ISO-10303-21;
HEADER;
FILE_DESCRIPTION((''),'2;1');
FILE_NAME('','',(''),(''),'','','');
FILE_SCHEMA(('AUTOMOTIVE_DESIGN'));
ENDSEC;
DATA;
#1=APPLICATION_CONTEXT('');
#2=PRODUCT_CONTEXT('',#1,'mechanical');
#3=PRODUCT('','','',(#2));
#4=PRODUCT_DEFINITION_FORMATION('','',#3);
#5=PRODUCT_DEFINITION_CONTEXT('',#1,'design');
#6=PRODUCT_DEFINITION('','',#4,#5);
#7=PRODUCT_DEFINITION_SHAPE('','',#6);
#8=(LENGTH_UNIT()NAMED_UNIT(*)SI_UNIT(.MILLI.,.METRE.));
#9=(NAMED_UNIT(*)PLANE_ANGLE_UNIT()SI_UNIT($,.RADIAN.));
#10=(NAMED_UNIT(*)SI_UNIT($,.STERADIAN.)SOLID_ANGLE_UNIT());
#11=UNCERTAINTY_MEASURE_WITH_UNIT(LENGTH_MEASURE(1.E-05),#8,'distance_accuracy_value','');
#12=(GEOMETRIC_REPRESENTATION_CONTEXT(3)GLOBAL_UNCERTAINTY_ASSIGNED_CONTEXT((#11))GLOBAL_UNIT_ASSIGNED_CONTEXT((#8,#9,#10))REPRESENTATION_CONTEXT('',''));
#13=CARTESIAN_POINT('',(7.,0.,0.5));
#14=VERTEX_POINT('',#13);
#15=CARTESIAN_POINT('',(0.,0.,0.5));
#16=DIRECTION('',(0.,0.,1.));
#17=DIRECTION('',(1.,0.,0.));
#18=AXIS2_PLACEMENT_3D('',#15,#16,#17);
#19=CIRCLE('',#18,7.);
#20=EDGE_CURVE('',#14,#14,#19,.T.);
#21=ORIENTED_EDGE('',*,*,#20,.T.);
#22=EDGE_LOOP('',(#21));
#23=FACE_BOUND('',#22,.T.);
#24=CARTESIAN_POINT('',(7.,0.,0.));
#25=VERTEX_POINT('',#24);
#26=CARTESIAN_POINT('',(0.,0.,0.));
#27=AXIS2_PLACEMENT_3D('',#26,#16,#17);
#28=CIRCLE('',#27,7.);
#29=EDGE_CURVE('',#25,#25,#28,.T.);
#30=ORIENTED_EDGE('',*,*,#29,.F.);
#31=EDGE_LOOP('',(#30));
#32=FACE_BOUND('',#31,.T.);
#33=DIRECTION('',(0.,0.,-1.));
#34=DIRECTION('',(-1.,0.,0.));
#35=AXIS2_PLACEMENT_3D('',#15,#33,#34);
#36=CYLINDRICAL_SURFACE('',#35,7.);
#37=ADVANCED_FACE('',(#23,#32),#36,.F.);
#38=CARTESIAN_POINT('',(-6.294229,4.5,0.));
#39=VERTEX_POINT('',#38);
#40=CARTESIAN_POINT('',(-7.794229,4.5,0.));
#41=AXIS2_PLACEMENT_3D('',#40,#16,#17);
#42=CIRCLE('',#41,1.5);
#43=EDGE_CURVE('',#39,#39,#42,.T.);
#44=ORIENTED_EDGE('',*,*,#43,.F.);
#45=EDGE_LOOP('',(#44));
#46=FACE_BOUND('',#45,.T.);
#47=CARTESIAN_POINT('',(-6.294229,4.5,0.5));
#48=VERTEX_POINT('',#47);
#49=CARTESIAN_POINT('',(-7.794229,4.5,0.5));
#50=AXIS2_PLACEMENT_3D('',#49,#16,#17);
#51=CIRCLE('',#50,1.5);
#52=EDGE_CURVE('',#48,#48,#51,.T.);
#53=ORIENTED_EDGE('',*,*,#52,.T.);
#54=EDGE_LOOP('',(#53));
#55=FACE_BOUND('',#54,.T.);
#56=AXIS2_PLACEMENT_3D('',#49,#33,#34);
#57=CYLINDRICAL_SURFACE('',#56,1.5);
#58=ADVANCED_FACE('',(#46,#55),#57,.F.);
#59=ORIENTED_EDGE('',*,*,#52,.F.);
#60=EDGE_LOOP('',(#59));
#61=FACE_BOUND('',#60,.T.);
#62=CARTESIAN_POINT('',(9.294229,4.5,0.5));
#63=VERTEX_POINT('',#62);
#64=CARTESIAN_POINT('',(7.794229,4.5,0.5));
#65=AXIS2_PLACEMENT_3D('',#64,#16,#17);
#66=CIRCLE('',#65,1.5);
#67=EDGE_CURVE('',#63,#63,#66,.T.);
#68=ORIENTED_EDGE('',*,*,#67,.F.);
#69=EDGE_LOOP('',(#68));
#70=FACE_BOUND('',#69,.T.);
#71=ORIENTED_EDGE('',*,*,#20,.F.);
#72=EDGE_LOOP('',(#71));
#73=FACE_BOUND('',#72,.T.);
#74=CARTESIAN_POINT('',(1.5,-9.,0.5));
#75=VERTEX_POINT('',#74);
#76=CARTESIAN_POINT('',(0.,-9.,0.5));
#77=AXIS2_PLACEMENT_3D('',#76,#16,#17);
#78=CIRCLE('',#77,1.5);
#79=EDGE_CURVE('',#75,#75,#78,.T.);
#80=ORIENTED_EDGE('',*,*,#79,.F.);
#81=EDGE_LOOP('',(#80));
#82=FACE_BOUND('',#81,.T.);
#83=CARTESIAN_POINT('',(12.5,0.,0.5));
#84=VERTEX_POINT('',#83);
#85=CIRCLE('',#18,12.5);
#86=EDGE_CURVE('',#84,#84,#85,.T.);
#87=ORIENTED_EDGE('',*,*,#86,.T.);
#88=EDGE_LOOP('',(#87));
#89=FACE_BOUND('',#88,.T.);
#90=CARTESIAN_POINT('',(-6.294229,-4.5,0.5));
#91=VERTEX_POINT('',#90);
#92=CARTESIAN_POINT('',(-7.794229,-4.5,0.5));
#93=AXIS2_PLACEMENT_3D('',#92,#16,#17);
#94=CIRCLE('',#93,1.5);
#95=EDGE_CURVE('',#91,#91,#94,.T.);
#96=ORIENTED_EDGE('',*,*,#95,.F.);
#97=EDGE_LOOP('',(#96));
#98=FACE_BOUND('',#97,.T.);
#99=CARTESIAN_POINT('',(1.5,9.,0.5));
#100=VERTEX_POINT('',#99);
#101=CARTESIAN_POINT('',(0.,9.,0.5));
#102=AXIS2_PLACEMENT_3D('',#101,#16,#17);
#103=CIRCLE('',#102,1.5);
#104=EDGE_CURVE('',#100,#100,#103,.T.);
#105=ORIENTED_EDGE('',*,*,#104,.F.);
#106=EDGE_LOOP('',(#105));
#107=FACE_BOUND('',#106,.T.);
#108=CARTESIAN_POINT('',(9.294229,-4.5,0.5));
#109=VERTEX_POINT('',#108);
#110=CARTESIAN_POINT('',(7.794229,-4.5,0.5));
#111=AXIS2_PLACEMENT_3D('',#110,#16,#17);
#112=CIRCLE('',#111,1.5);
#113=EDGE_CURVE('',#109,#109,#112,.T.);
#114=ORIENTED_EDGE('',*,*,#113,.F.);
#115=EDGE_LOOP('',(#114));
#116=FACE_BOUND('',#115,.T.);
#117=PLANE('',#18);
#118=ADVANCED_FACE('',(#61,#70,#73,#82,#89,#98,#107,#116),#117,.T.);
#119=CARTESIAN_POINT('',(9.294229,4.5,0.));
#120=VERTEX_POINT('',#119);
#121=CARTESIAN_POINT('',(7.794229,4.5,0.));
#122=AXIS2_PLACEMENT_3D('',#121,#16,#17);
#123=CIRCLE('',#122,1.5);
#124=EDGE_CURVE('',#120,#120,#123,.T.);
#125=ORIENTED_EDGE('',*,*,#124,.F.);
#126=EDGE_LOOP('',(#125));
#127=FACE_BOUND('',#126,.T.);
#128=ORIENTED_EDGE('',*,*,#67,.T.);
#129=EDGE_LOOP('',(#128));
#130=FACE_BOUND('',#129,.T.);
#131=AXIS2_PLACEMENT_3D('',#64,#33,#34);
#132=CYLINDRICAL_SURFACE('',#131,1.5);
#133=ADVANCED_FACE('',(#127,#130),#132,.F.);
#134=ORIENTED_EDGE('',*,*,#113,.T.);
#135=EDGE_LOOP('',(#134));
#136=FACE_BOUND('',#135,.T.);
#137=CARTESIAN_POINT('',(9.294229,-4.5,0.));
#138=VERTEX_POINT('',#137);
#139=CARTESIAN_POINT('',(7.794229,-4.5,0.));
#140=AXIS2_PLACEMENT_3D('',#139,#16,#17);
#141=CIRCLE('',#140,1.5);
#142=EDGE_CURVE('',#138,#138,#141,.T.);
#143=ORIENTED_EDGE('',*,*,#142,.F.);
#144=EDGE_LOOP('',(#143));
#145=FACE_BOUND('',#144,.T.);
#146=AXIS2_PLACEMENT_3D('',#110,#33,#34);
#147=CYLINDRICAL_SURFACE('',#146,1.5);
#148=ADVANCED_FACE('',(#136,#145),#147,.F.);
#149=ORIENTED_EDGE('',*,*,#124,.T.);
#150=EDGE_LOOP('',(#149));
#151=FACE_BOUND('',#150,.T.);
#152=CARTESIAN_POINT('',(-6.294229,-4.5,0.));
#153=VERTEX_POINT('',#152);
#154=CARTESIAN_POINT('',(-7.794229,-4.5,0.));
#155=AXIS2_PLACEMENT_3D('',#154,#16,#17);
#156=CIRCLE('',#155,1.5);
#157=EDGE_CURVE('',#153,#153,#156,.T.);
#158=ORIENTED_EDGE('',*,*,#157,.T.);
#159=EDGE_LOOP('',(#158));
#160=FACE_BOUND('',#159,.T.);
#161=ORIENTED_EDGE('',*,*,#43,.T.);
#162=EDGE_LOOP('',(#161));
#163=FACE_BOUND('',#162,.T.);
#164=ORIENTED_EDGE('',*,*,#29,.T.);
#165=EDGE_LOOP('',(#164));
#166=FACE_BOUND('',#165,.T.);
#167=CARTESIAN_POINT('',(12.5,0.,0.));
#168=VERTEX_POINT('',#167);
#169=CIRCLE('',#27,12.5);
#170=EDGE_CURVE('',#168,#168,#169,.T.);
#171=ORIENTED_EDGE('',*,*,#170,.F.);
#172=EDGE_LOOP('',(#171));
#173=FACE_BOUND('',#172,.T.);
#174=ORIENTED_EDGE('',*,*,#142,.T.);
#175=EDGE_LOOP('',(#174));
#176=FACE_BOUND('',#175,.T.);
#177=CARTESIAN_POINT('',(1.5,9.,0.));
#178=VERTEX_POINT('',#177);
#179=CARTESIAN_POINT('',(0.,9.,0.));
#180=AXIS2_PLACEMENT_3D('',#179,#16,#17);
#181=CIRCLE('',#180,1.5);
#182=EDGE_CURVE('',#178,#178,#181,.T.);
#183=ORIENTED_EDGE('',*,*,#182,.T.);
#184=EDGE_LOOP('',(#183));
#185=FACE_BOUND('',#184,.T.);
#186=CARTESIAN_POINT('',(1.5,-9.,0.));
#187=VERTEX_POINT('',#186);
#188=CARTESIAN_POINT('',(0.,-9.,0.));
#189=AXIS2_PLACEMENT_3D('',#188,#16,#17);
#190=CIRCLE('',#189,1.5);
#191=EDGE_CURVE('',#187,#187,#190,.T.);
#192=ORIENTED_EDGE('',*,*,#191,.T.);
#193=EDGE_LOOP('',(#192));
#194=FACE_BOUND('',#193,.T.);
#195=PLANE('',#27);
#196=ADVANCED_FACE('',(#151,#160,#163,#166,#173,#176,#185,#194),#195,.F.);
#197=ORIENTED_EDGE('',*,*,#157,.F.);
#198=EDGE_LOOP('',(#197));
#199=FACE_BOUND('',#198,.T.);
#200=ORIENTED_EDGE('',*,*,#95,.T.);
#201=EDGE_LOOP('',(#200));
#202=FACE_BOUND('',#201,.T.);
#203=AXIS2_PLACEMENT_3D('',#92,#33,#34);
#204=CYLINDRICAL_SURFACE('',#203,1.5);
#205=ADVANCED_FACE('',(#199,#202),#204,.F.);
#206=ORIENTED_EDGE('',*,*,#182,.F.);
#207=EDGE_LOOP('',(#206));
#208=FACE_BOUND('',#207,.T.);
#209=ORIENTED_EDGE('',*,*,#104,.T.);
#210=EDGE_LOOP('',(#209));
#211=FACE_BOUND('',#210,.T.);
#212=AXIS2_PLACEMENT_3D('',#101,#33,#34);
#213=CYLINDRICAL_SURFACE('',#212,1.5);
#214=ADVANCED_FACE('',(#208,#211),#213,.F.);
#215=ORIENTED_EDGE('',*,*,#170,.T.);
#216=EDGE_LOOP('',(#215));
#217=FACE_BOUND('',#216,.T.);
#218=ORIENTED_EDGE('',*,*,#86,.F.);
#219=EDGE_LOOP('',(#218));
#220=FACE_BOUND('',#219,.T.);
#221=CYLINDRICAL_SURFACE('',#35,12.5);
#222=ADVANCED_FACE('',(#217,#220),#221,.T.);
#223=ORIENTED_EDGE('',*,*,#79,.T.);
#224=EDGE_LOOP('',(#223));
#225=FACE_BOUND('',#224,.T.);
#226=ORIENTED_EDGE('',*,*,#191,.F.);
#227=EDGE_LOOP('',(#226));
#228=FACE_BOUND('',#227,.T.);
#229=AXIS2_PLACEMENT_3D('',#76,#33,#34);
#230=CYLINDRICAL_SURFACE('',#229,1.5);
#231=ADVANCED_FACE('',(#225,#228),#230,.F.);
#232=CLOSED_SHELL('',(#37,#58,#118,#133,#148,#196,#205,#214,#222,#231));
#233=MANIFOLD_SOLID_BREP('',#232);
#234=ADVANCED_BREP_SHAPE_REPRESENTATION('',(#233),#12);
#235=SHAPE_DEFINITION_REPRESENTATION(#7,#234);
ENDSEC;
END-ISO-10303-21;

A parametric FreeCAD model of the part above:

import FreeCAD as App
import Part
import Sketcher
Q = App.Units.Quantity

doc = App.newDocument("Part")
params = doc.addObject("Spreadsheet::Sheet", "Params")
for row, (alias, value) in enumerate([
    ("sketch1_diameter", "25 mm"),
    ("sketch1_diameter2", "3 mm"),
    ("sketch1_diameter3", "14 mm"),
    ("pad1_length", "0.5 mm"),
], start=1):
    params.set(f"A{row}", alias)
    params.set(f"B{row}", "=" + value)
    params.setAlias(f"B{row}", alias)

body = doc.addObject("PartDesign::Body", "Body")

# Sketch on XY plane
sketch1 = doc.addObject("Sketcher::SketchObject", "Sketch")
body.addObject(sketch1)
sketch1.AttachmentSupport = (doc.XY_Plane, [""])
sketch1.MapMode = "FlatFace"
sketch1.addGeometry([
    Part.Circle(App.Vector(0, 0, 0), App.Vector(0, 0, 1), 12.5),  # 0
    Part.Circle(App.Vector(-7.8, -4.5, 0), App.Vector(0, 0, 1), 1.5),  # 1
    Part.Circle(App.Vector(0, -9, 0), App.Vector(0, 0, 1), 1.5),  # 2
    Part.Circle(App.Vector(7.8, -4.5, 0), App.Vector(0, 0, 1), 1.5),  # 3
    Part.Circle(App.Vector(-7.8, 4.5, 0), App.Vector(0, 0, 1), 1.5),  # 4
    Part.Circle(App.Vector(0, 0, 0), App.Vector(0, 0, 1), 7),  # 5
    Part.Circle(App.Vector(7.8, 4.5, 0), App.Vector(0, 0, 1), 1.5),  # 6
    Part.Circle(App.Vector(0, 9, 0), App.Vector(0, 0, 1), 1.5),  # 7
], False)
sketch1.addConstraint([
    Sketcher.Constraint("Coincident", 0, 3, -1, 1),
    Sketcher.Constraint("Coincident", 5, 3, -1, 1),
    Sketcher.Constraint("Equal", 1, 2),
    Sketcher.Constraint("Equal", 2, 3),
    Sketcher.Constraint("Equal", 3, 4),
    Sketcher.Constraint("Equal", 4, 6),
    Sketcher.Constraint("Equal", 6, 7),
    Sketcher.Constraint("Symmetric", 3, 3, 4, 3, -1, 1),
    Sketcher.Constraint("Symmetric", 1, 3, 6, 3, -1, 1),
    Sketcher.Constraint("Symmetric", 2, 3, 7, 3, -1, 1),
    Sketcher.Constraint("Symmetric", 1, 3, 3, 3, -2),
    Sketcher.Constraint("PointOnObject", 2, 3, -2),
    Sketcher.Constraint("Diameter", 0, Q("25 mm")),
    Sketcher.Constraint("Diameter", 1, Q("3 mm")),
    Sketcher.Constraint("Diameter", 5, Q("14 mm")),
    Sketcher.Constraint("DistanceY", 2, 3, -1, 1, Q("9 mm")),
    Sketcher.Constraint("DistanceY", 1, 3, 4, 3, Q("9 mm")),
    Sketcher.Constraint("DistanceX", 1, 3, -1, 1, Q("7.794229 mm")),
])
sketch1.setExpression("Constraints[12]", "Params.sketch1_diameter")
sketch1.setExpression("Constraints[13]", "Params.sketch1_diameter2")
sketch1.setExpression("Constraints[14]", "Params.sketch1_diameter3")
pad1 = doc.addObject("PartDesign::Pad", "Pad")
body.addObject(pad1)
pad1.Profile = sketch1
pad1.setExpression("Length", "Params.pad1_length")

doc.recompute()
